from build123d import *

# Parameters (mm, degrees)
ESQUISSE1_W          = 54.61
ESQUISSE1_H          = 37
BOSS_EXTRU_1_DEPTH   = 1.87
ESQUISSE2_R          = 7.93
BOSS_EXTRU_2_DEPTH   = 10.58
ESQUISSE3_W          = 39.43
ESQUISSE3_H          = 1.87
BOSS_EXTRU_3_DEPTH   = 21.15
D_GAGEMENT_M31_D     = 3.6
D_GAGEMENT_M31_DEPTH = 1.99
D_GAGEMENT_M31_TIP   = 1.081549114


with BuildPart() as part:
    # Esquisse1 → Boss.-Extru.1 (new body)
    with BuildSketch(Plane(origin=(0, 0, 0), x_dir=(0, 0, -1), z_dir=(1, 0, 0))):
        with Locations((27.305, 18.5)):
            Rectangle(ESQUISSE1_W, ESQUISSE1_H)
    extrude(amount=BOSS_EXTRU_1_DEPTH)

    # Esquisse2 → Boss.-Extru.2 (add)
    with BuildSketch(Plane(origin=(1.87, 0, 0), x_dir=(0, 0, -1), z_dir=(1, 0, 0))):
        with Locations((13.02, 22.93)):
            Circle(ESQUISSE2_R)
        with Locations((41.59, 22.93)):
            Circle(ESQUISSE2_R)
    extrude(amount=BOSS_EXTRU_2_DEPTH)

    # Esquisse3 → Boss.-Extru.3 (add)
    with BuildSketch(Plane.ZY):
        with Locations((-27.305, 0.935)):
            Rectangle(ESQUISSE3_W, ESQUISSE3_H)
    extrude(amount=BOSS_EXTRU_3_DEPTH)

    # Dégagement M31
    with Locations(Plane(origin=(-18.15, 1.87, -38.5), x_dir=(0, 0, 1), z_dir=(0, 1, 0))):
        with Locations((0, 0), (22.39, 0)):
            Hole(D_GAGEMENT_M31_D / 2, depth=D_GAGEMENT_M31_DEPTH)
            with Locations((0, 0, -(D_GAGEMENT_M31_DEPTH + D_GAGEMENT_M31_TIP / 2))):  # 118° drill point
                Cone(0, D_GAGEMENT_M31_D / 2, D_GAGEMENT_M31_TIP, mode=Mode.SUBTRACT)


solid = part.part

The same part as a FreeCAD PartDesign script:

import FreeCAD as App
import Part
import Sketcher
Q = App.Units.Quantity

doc = App.newDocument("Part")
params = doc.addObject("Spreadsheet::Sheet", "Params")
for row, (alias, value) in enumerate([
    ("sketch1_width", "37 mm"),
    ("sketch1_height", "54.61 mm"),
    ("pad1_length", "1.87 mm"),
    ("sketch2_diameter", "15.86 mm"),
    ("pad2_length", "10.58 mm"),
    ("sketch3_width", "1.87 mm"),
    ("sketch3_height", "39.43 mm"),
    ("pad3_length", "21.15 mm"),
    ("sketch4_diameter", "3.6 mm"),
    ("hole_diameter", "3.6 mm"),
    ("hole_depth", "1.99 mm"),
], start=1):
    params.set(f"A{row}", alias)
    params.set(f"B{row}", "=" + value)
    params.setAlias(f"B{row}", alias)

body = doc.addObject("PartDesign::Body", "Body")

sketch1 = body.newObject("Sketcher::SketchObject", "Sketch")
sketch1.AttachmentSupport = (doc.getObject("YZ_Plane"), [""])
sketch1.MapMode = "FlatFace"
sketch1.addGeometry([
    Part.LineSegment(App.Vector(37, 0, 0), App.Vector(0, 0, 0)),
    Part.LineSegment(App.Vector(0, 0, 0), App.Vector(0, -55, 0)),
    Part.LineSegment(App.Vector(0, -55, 0), App.Vector(37, -55, 0)),
    Part.LineSegment(App.Vector(37, -55, 0), App.Vector(37, 0, 0)),
], False)
sketch1.addConstraint([
    Sketcher.Constraint("Coincident", 0, 2, 1, 1),
    Sketcher.Constraint("Coincident", 1, 2, 2, 1),
    Sketcher.Constraint("Coincident", 2, 2, 3, 1),
    Sketcher.Constraint("Coincident", 3, 2, 0, 1),
    Sketcher.Constraint("Horizontal", 0),
    Sketcher.Constraint("Vertical", 1),
    Sketcher.Constraint("Horizontal", 2),
    Sketcher.Constraint("Vertical", 3),
    Sketcher.Constraint("Coincident", 0, 2, -1, 1),
    Sketcher.Constraint("DistanceX", 0, 2, 0, 1, Q("37 mm")),
    Sketcher.Constraint("DistanceY", 1, 2, 1, 1, Q("54.61 mm")),
])
sketch1.setExpression("Constraints[9]", "Params.sketch1_width")
sketch1.setExpression("Constraints[10]", "Params.sketch1_height")
pad1 = body.newObject("PartDesign::Pad", "Pad")
pad1.Profile = sketch1
pad1.setExpression("Length", "Params.pad1_length")

sketch2 = body.newObject("Sketcher::SketchObject", "Sketch001")
sketch2.AttachmentSupport = (doc.getObject("YZ_Plane"), [""])
sketch2.MapMode = "FlatFace"
sketch2.AttachmentOffset = App.Placement(App.Vector(0, 0, 1.87), App.Rotation())
sketch2.addGeometry([
    Part.Circle(App.Vector(23, -13, 0), App.Vector(0, 0, 1), 8),
    Part.Circle(App.Vector(23, -42, 0), App.Vector(0, 0, 1), 8),
], False)
sketch2.addConstraint([
    Sketcher.Constraint("Equal", 0, 1),
    Sketcher.Constraint("Vertical", 0, 3, 1, 3),
    Sketcher.Constraint("Diameter", 0, Q("15.86 mm")),
    Sketcher.Constraint("DistanceX", -1, 1, 0, 3, Q("22.93 mm")),
    Sketcher.Constraint("DistanceY", 0, 3, -1, 1, Q("13.02 mm")),
    Sketcher.Constraint("DistanceY", 1, 3, -1, 1, Q("41.59 mm")),
])
sketch2.setExpression("Constraints[2]", "Params.sketch2_diameter")
pad2 = body.newObject("PartDesign::Pad", "Pad001")
pad2.Profile = sketch2
pad2.setExpression("Length", "Params.pad2_length")

sketch3 = body.newObject("Sketcher::SketchObject", "Sketch002")
sketch3.AttachmentSupport = (doc.getObject("YZ_Plane"), [""])
sketch3.MapMode = "FlatFace"
sketch3.addGeometry([
    Part.LineSegment(App.Vector(1.9, -47, 0), App.Vector(0, -47, 0)),
    Part.LineSegment(App.Vector(0, -47, 0), App.Vector(0, -7.6, 0)),
    Part.LineSegment(App.Vector(0, -7.6, 0), App.Vector(1.9, -7.6, 0)),
    Part.LineSegment(App.Vector(1.9, -7.6, 0), App.Vector(1.9, -47, 0)),
], False)
sketch3.addConstraint([
    Sketcher.Constraint("Coincident", 0, 2, 1, 1),
    Sketcher.Constraint("Coincident", 1, 2, 2, 1),
    Sketcher.Constraint("Coincident", 2, 2, 3, 1),
    Sketcher.Constraint("Coincident", 3, 2, 0, 1),
    Sketcher.Constraint("Horizontal", 0),
    Sketcher.Constraint("Vertical", 1),
    Sketcher.Constraint("Horizontal", 2),
    Sketcher.Constraint("Vertical", 3),
    Sketcher.Constraint("PointOnObject", 0, 2, -2),
    Sketcher.Constraint("DistanceX", 0, 2, 0, 1, Q("1.87 mm")),
    Sketcher.Constraint("DistanceY", 1, 1, 1, 2, Q("39.43 mm")),
    Sketcher.Constraint("DistanceY", 0, 2, -1, 1, Q("47.02 mm")),
])
sketch3.setExpression("Constraints[9]", "Params.sketch3_width")
sketch3.setExpression("Constraints[10]", "Params.sketch3_height")
pad3 = body.newObject("PartDesign::Pad", "Pad002")
pad3.Profile = sketch3
pad3.setExpression("Length", "Params.pad3_length")
pad3.Reversed = True

sketch4 = body.newObject("Sketcher::SketchObject", "Sketch003")
sketch4.AttachmentSupport = (doc.getObject("XZ_Plane"), [""])
sketch4.MapMode = "FlatFace"
sketch4.AttachmentOffset = App.Placement(App.Vector(0, 0, -1.87), App.Rotation())
sketch4.addGeometry([
    Part.Circle(App.Vector(-18.1, -38.5, 0), App.Vector(0, 0, 1), 1.8),
    Part.Circle(App.Vector(-18.1, -16.1, 0), App.Vector(0, 0, 1), 1.8),
], False)
sketch4.addConstraint([
    Sketcher.Constraint("Equal", 0, 1),
    Sketcher.Constraint("Vertical", 0, 3, 1, 3),
    Sketcher.Constraint("Diameter", 0, Q("3.6 mm")),
    Sketcher.Constraint("DistanceY", 0, 3, -1, 1, Q("38.5 mm")),
    Sketcher.Constraint("DistanceX", 0, 3, -1, 1, Q("18.15 mm")),
    Sketcher.Constraint("DistanceY", 1, 3, -1, 1, Q("16.11 mm")),
])
sketch4.setExpression("Constraints[2]", "Params.sketch4_diameter")
doc.recompute()
hole = body.newObject("PartDesign::Hole", "Hole")
hole.Profile = sketch4
hole.ThreadType = "None"
hole.setExpression("Diameter", "Params.hole_diameter")
hole.DepthType = "Dimension"
hole.setExpression("Depth", "Params.hole_depth")
hole.DrillPoint = "Angled"
hole.DrillPointAngle = 118
hole.Reversed = True

doc.recompute()
